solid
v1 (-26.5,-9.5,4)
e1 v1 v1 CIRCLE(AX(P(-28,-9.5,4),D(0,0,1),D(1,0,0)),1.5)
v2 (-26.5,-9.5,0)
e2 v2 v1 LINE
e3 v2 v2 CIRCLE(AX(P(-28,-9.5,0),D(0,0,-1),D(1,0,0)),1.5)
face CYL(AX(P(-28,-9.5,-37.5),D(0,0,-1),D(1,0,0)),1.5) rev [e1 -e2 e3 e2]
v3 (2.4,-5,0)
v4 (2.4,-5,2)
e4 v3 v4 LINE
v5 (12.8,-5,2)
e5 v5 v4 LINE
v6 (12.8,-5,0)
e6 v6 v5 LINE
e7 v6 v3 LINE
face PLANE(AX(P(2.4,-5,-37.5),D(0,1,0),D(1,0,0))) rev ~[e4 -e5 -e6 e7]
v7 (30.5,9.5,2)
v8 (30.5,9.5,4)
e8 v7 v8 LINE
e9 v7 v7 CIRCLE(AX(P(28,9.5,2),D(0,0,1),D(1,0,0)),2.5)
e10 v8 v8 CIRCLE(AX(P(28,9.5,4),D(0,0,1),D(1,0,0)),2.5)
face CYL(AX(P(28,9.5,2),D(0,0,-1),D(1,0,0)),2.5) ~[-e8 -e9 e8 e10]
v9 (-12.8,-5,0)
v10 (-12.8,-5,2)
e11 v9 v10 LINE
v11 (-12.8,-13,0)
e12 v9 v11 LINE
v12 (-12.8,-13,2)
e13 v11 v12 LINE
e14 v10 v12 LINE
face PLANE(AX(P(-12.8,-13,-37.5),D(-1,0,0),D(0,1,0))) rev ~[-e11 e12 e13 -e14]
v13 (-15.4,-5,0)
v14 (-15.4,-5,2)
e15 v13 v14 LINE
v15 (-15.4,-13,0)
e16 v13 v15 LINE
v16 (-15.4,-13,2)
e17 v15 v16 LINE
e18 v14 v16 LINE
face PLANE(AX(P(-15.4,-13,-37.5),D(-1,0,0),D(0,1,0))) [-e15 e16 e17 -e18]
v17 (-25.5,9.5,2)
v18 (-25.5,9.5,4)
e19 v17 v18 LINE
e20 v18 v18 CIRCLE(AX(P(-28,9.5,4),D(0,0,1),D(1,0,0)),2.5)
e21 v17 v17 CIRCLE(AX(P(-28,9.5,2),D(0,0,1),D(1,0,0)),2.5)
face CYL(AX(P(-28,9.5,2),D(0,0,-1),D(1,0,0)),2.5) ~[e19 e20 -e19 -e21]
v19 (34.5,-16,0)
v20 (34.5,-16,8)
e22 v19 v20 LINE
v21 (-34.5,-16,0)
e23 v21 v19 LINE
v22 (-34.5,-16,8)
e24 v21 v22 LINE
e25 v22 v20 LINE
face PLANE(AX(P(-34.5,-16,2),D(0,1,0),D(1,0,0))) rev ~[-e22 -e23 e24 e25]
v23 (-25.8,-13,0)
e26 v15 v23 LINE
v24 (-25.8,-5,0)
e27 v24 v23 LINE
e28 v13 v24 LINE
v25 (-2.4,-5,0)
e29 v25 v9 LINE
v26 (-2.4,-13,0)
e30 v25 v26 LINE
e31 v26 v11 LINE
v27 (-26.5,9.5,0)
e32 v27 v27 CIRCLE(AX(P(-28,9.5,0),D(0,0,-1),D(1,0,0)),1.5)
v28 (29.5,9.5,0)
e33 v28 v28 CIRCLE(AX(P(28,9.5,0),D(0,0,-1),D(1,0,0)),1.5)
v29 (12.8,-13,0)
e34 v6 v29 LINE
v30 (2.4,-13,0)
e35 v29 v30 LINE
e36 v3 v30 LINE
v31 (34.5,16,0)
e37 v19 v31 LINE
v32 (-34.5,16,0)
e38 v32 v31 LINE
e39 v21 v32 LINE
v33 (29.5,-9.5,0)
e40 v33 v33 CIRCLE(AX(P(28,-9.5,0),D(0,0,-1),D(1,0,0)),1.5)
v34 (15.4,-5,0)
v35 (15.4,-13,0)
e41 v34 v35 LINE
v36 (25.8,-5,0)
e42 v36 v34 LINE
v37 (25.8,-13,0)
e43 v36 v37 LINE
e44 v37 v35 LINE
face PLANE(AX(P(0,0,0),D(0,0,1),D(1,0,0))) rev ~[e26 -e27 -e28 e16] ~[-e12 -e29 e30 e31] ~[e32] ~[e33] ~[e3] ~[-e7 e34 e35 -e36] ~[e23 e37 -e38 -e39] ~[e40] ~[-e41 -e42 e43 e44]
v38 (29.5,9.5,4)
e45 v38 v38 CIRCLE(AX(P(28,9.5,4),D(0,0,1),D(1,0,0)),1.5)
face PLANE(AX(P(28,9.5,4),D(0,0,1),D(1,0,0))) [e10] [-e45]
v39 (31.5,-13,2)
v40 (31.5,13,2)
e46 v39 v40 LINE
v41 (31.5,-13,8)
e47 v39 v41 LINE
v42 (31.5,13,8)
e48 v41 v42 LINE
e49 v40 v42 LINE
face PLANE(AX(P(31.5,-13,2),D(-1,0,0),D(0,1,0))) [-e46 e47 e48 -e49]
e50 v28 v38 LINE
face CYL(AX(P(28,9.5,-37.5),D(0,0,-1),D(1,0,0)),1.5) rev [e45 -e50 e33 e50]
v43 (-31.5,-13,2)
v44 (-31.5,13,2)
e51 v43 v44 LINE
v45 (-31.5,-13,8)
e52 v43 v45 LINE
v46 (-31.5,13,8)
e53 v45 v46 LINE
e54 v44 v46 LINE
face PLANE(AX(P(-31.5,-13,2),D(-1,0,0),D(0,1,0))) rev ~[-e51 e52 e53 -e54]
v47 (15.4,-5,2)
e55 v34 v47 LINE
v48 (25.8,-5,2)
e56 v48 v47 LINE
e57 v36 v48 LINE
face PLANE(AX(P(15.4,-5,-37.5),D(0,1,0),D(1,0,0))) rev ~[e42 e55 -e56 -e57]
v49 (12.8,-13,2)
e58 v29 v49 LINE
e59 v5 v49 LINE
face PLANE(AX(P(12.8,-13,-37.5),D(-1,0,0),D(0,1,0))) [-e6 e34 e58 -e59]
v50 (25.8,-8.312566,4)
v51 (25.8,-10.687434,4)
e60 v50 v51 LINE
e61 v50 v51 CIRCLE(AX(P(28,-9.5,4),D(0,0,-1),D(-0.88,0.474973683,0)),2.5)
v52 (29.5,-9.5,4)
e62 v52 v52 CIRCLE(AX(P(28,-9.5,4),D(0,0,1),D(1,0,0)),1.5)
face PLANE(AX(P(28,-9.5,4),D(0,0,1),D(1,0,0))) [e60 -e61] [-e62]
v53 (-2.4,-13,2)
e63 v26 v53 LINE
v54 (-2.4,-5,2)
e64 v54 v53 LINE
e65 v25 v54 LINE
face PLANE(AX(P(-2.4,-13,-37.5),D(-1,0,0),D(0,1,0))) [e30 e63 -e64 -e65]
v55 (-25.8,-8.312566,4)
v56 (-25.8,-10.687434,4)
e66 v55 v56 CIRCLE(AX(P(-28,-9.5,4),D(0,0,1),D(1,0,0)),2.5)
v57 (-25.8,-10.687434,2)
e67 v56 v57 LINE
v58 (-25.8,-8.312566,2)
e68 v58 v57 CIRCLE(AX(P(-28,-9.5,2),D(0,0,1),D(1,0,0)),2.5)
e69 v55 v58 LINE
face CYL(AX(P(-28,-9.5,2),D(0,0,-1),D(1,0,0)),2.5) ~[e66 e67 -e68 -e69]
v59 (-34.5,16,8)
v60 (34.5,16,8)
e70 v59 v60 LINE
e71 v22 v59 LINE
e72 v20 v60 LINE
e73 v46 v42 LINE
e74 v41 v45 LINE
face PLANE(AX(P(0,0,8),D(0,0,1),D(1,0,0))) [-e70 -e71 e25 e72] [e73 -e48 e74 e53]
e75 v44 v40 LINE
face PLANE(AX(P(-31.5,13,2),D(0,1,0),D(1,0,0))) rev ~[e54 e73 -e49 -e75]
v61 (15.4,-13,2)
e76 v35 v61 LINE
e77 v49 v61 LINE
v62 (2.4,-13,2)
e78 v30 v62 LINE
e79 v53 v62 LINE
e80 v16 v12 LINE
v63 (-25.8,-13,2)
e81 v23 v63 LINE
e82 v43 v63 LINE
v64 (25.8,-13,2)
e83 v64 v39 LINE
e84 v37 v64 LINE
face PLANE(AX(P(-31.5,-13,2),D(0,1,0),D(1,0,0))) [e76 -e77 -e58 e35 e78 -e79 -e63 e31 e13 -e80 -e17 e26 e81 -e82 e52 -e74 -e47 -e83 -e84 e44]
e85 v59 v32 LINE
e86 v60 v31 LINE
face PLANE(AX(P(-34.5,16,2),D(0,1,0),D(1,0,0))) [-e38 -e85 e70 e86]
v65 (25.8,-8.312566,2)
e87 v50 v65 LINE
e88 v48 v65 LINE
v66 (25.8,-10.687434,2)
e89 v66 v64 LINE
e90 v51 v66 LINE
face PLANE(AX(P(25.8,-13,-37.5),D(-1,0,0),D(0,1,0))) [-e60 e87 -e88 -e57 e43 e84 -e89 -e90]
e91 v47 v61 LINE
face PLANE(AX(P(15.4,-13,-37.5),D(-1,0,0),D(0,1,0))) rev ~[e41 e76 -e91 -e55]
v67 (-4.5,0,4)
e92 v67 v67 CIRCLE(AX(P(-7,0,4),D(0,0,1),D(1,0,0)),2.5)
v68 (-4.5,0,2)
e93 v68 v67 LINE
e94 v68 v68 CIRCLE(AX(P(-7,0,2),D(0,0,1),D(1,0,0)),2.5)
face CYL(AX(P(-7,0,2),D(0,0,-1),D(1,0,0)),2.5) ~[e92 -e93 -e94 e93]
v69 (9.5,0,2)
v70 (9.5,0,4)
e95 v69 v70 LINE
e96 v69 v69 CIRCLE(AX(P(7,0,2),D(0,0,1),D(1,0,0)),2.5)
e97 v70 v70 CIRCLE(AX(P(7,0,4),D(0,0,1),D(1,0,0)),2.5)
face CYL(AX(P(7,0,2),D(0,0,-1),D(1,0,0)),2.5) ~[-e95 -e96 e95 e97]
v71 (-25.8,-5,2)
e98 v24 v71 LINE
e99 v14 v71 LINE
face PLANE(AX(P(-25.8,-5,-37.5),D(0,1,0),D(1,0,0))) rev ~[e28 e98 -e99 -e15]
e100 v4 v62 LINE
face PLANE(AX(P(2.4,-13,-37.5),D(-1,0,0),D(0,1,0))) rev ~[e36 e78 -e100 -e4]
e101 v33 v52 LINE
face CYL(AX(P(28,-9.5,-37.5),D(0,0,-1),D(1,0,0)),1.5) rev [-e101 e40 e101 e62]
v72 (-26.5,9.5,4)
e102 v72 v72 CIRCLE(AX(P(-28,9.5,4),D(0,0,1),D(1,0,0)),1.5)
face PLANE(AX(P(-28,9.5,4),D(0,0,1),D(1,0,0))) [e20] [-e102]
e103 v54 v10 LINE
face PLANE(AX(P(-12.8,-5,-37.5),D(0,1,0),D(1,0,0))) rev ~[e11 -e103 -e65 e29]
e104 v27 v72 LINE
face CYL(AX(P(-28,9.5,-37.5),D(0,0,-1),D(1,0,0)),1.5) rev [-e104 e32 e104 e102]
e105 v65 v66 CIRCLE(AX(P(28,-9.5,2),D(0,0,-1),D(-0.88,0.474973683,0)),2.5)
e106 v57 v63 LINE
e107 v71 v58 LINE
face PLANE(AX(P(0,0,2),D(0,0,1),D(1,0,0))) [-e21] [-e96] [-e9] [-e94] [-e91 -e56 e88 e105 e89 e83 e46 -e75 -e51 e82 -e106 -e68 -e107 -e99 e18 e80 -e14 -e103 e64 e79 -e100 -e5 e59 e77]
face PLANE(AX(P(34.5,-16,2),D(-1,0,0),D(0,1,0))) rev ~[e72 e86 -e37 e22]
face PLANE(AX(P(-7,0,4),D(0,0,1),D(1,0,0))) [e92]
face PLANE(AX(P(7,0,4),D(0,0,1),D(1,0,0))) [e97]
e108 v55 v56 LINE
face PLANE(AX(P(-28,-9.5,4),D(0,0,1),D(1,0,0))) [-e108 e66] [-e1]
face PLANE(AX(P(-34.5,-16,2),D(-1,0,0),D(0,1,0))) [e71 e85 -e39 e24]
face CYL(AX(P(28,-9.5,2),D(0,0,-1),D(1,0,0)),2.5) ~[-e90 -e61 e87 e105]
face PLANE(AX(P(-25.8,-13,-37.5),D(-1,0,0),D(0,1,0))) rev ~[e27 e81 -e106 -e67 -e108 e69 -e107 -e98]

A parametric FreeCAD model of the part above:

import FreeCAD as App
import Part
import Sketcher
from FreeCAD import Vector


def add_polygon(sketch, points):
    """Adds a closed chain of lines whose ends are joined by coincident constraints."""
    first, n = sketch.GeometryCount, len(points)
    for a, b in zip(points, points[1:] + points[:1]):
        sketch.addGeometry(Part.LineSegment(App.Vector(*a, 0), App.Vector(*b, 0)), False)
    for i in range(n):
        sketch.addConstraint(Sketcher.Constraint("Coincident", first + i, 2, first + (i + 1) % n, 1))

doc = App.newDocument("Part")
params = doc.addObject("Spreadsheet::Sheet", "Params")
for row, (alias, value) in enumerate([
    ("sketch1_width", "69 mm"),
    ("sketch1_height", "32 mm"),
    ("pad1_length", "2 mm"),
    ("sketch2_width", "69 mm"),
    ("sketch2_width2", "63 mm"),
    ("sketch2_height", "32 mm"),
    ("sketch2_height2", "26 mm"),
    ("pad2_length", "6 mm"),
    ("sketch3_diameter", "5 mm"),
    ("sketch3_diameter2", "3 mm"),
    ("pad3_length", "2 mm"),
    ("sketch4_diameter", "3 mm"),
    ("sketch4_height", "8 mm"),
    ("sketch4_width", "10.4 mm"),
], start=1):
    params.set(f"A{row}", alias)
    params.set(f"B{row}", "=" + value)
    params.setAlias(f"B{row}", alias)

body = doc.addObject("PartDesign::Body", "Body")

# Sketch on XY plane
sketch1 = body.newObject("Sketcher::SketchObject", "Sketch")
sketch1.AttachmentSupport = (doc.getObject("XY_Plane"), [""])
sketch1.MapMode = "FlatFace"
add_polygon(sketch1, [(-34.5, 16), (-34.5, -16), (34.5, -16), (34.5, 16)])  # lines 0-3
sketch1.addConstraint([
    Sketcher.Constraint("Vertical", 0),
    Sketcher.Constraint("Horizontal", 1),
    Sketcher.Constraint("Vertical", 2),
    Sketcher.Constraint("Horizontal", 3),
    Sketcher.Constraint("Symmetric", 0, 2, 2, 2, -1, 1),
    Sketcher.Constraint("DistanceX", 1, 1, 1, 2, 69.0),
    Sketcher.Constraint("DistanceY", 0, 2, 0, 1, 32.0),
])
sketch1.setExpression("Constraints[9]", "Params.sketch1_width")
sketch1.setExpression("Constraints[10]", "Params.sketch1_height")
pad1 = body.newObject("PartDesign::Pad", "Pad")
pad1.Profile = sketch1
pad1.setExpression("Length", "Params.pad1_length")

# Sketch on XY plane
sketch2 = body.newObject("Sketcher::SketchObject", "Sketch001")
sketch2.AttachmentSupport = (doc.getObject("XY_Plane"), [""])
sketch2.MapMode = "FlatFace"
sketch2.AttachmentOffset = App.Placement(Vector(0, 0, 2), App.Rotation())
add_polygon(sketch2, [(-34.5, 16), (-34.5, -16), (34.5, -16), (34.5, 16)])  # lines 0-3
add_polygon(sketch2, [(31.5, -13), (-31.5, -13), (-31.5, 13), (31.5, 13)])  # lines 4-7
sketch2.addConstraint([
    Sketcher.Constraint("Vertical", 0),
    Sketcher.Constraint("Horizontal", 1),
    Sketcher.Constraint("Vertical", 2),
    Sketcher.Constraint("Horizontal", 3),
    Sketcher.Constraint("Horizontal", 4),
    Sketcher.Constraint("Vertical", 5),
    Sketcher.Constraint("Horizontal", 6),
    Sketcher.Constraint("Vertical", 7),
    Sketcher.Constraint("Symmetric", 0, 2, 2, 2, -1, 1),
    Sketcher.Constraint("Symmetric", 4, 2, 6, 2, -1, 1),
    Sketcher.Constraint("DistanceX", 1, 1, 1, 2, 69.0),
    Sketcher.Constraint("DistanceX", 4, 2, 4, 1, 63.0),
    Sketcher.Constraint("DistanceY", 0, 2, 0, 1, 32.0),
    Sketcher.Constraint("DistanceY", 5, 1, 5, 2, 26.0),
])
sketch2.setExpression("Constraints[18]", "Params.sketch2_width")
sketch2.setExpression("Constraints[19]", "Params.sketch2_width2")
sketch2.setExpression("Constraints[20]", "Params.sketch2_height")
sketch2.setExpression("Constraints[21]", "Params.sketch2_height2")
pad2 = body.newObject("PartDesign::Pad", "Pad001")
pad2.Profile = sketch2
pad2.setExpression("Length", "Params.pad2_length")

# Sketch on XY plane
sketch3 = body.newObject("Sketcher::SketchObject", "Sketch002")
sketch3.AttachmentSupport = (doc.getObject("XY_Plane"), [""])
sketch3.MapMode = "FlatFace"
sketch3.AttachmentOffset = App.Placement(Vector(0, 0, 2), App.Rotation())
sketch3.addGeometry([
    Part.Circle(Vector(-28, 9.5, 0), Vector(0, 0, 1), 2.5),  # 0
    Part.Circle(Vector(-28, 9.5, 0), Vector(0, 0, 1), 1.5),  # 1
    Part.Circle(Vector(-28, -9.5, 0), Vector(0, 0, 1), 2.5),  # 2
    Part.Circle(Vector(-28, -9.5, 0), Vector(0, 0, 1), 1.5),  # 3
    Part.Circle(Vector(28, -9.5, 0), Vector(0, 0, 1), 2.5),  # 4
    Part.Circle(Vector(28, -9.5, 0), Vector(0, 0, 1), 1.5),  # 5
    Part.Circle(Vector(28, 9.5, 0), Vector(0, 0, 1), 2.5),  # 6
    Part.Circle(Vector(28, 9.5, 0), Vector(0, 0, 1), 1.5),  # 7
    Part.Circle(Vector(-7, 0, 0), Vector(0, 0, 1), 2.5),  # 8
    Part.Circle(Vector(7, 0, 0), Vector(0, 0, 1), 2.5),  # 9
], False)
sketch3.addConstraint([
    Sketcher.Constraint("Coincident", 1, 3, 0, 3),
    Sketcher.Constraint("Coincident", 3, 3, 2, 3),
    Sketcher.Constraint("Coincident", 5, 3, 4, 3),
    Sketcher.Constraint("Coincident", 7, 3, 6, 3),
    Sketcher.Constraint("Equal", 0, 2),
    Sketcher.Constraint("Equal", 1, 3),
    Sketcher.Constraint("Equal", 2, 4),
    Sketcher.Constraint("Equal", 3, 5),
    Sketcher.Constraint("Equal", 4, 6),
    Sketcher.Constraint("Equal", 5, 7),
    Sketcher.Constraint("Equal", 6, 8),
    Sketcher.Constraint("Equal", 8, 9),
    Sketcher.Constraint("Symmetric", 0, 3, 4, 3, -1, 1),
    Sketcher.Constraint("Symmetric", 2, 3, 6, 3, -1, 1),
    Sketcher.Constraint("Symmetric", 8, 3, 9, 3, -1, 1),
    Sketcher.Constraint("Symmetric", 2, 3, 4, 3, -2),
    Sketcher.Constraint("PointOnObject", 8, 3, -1),
    Sketcher.Constraint("Diameter", 0, 5.0),
    Sketcher.Constraint("Diameter", 1, 3.0),
    Sketcher.Constraint("DistanceX", 0, 3, -1, 1, 28.0),
    Sketcher.Constraint("DistanceX", 8, 3, -1, 1, 7.0),
    Sketcher.Constraint("DistanceY", 2, 3, 0, 3, 19.0),
])
sketch3.setExpression("Constraints[17]", "Params.sketch3_diameter")
sketch3.setExpression("Constraints[18]", "Params.sketch3_diameter2")
pad3 = body.newObject("PartDesign::Pad", "Pad002")
pad3.Profile = sketch3
pad3.setExpression("Length", "Params.pad3_length")

# Sketch on XY plane
sketch4 = body.newObject("Sketcher::SketchObject", "Sketch003")
sketch4.AttachmentSupport = (doc.getObject("XY_Plane"), [""])
sketch4.MapMode = "FlatFace"
sketch4.AttachmentOffset = App.Placement(Vector(0, 0, 2), App.Rotation())
sketch4.addGeometry(Part.Circle(Vector(28, 9.5, 0), Vector(0, 0, 1), 1.5), False)  # 0
sketch4.addGeometry(Part.Circle(Vector(28, -9.5, 0), Vector(0, 0, 1), 1.5), False)  # 1
sketch4.addGeometry(Part.Circle(Vector(-28, -9.5, 0), Vector(0, 0, 1), 1.5), False)  # 2
sketch4.addGeometry(Part.Circle(Vector(-28, 9.5, 0), Vector(0, 0, 1), 1.5), False)  # 3
add_polygon(sketch4, [(-25.8, -5), (-25.8, -13), (-15.4, -13), (-15.4, -5)])  # lines 4-7
add_polygon(sketch4, [(-12.8, -5), (-12.8, -13), (-2.4, -13), (-2.4, -5)])  # lines 8-11
add_polygon(sketch4, [(2.4, -5), (2.4, -13), (12.8, -13), (12.8, -5)])  # lines 12-15
add_polygon(sketch4, [(15.4, -5), (15.4, -13), (25.8, -13), (25.8, -5)])  # lines 16-19
sketch4.addConstraint([
    Sketcher.Constraint("Vertical", 4),
    Sketcher.Constraint("Horizontal", 5),
    Sketcher.Constraint("Vertical", 6),
    Sketcher.Constraint("Horizontal", 7),
    Sketcher.Constraint("Vertical", 8),
    Sketcher.Constraint("Horizontal", 9),
    Sketcher.Constraint("Vertical", 10),
    Sketcher.Constraint("Horizontal", 11),
    Sketcher.Constraint("Vertical", 12),
    Sketcher.Constraint("Horizontal", 13),
    Sketcher.Constraint("Vertical", 14),
    Sketcher.Constraint("Horizontal", 15),
    Sketcher.Constraint("Vertical", 16),
    Sketcher.Constraint("Horizontal", 17),
    Sketcher.Constraint("Vertical", 18),
    Sketcher.Constraint("Horizontal", 19),
    Sketcher.Constraint("Equal", 0, 1),
    Sketcher.Constraint("Equal", 1, 2),
    Sketcher.Constraint("Equal", 2, 3),
    Sketcher.Constraint("Symmetric", 0, 3, 2, 3, -1, 1),
    Sketcher.Constraint("Symmetric", 1, 3, 3, 3, -1, 1),
    Sketcher.Constraint("Symmetric", 1, 3, 2, 3, -2),
    Sketcher.Constraint("Symmetric", 9, 2, 12, 2, -2),
    Sketcher.Constraint("Symmetric", 11, 2, 14, 2, -2),
    Sketcher.Constraint("Symmetric", 5, 2, 16, 2, -2),
    Sketcher.Constraint("Symmetric", 7, 2, 18, 2, -2),
    Sketcher.Constraint("Horizontal", 5, 2, 8, 2),
    Sketcher.Constraint("Horizontal", 7, 2, 10, 2),
    Sketcher.Constraint("Equal", 7, 9),
    Sketcher.Constraint("Diameter", 0, 3.0),
    Sketcher.Constraint("DistanceY", 4, 2, 4, 1, 8.0),
    Sketcher.Constraint("DistanceX", 5, 1, 5, 2, 10.4),
    Sketcher.Constraint("DistanceX", -1, 1, 0, 3, 28.0),
    Sketcher.Constraint("DistanceY", 4, 2, -1, 1, 13.0),
    Sketcher.Constraint("DistanceY", 1, 3, 0, 3, 19.0),
    Sketcher.Constraint("DistanceX", 4, 2, 8, 2, 13.0),
    Sketcher.Constraint("DistanceX", 4, 2, -1, 1, 25.8),
])
sketch4.setExpression("Constraints[45]", "Params.sketch4_diameter")
sketch4.setExpression("Constraints[46]", "Params.sketch4_height")
sketch4.setExpression("Constraints[47]", "Params.sketch4_width")
pocket1 = body.newObject("PartDesign::Pocket", "Pocket")
pocket1.Profile = sketch4
pocket1.Type = "ThroughAll"
pocket1.Midplane = True

doc.recompute()
